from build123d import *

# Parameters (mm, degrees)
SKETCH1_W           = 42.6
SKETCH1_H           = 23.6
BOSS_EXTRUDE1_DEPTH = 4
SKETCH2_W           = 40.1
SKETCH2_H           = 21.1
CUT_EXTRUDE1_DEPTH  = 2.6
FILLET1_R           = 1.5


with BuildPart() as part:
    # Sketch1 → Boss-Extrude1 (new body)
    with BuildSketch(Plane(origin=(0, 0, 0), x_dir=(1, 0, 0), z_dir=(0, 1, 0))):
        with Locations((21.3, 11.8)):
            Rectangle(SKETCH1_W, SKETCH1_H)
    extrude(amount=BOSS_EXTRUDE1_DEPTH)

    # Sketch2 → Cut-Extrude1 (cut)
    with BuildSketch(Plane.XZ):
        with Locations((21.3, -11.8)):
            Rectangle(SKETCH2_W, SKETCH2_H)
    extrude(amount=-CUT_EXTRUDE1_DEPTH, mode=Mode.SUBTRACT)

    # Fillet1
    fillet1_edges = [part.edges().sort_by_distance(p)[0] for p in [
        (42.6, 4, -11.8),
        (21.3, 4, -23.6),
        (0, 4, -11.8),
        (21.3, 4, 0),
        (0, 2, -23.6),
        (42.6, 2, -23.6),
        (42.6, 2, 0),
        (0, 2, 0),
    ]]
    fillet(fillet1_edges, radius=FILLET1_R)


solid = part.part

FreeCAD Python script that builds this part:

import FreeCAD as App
import Part
import Sketcher

V = App.Vector


def edges_at(feature, points):
    """Names of the edges that pass closest to the given points."""
    edges = feature.Shape.Edges
    near = lambda p: min(range(len(edges)), key=lambda i: edges[i].distToShape(Part.Vertex(*p))[0])
    return sorted({f"Edge{near(p) + 1}" for p in points})

doc = App.newDocument("Part")
body = doc.addObject("PartDesign::Body", "Body")

# Sketch on XZ plane
sketch1 = body.newObject("Sketcher::SketchObject", "Sketch")
sketch1.AttachmentSupport = (doc.getObject("XZ_Plane"), [""])
sketch1.MapMode = "FlatFace"
sketch1.addGeometry(Part.LineSegment(V(0, -24, 0), V(0, 0, 0)), False)
sketch1.addGeometry(Part.LineSegment(V(0, 0, 0), V(43, 0, 0)), False)
sketch1.addGeometry(Part.LineSegment(V(43, 0, 0), V(43, -24, 0)), False)
sketch1.addGeometry(Part.LineSegment(V(43, -24, 0), V(0, -24, 0)), False)
sketch1.addConstraint(Sketcher.Constraint("Coincident", 0, 2, 1, 1))
sketch1.addConstraint(Sketcher.Constraint("Coincident", 1, 2, 2, 1))
sketch1.addConstraint(Sketcher.Constraint("Coincident", 2, 2, 3, 1))
sketch1.addConstraint(Sketcher.Constraint("Coincident", 3, 2, 0, 1))
sketch1.addConstraint(Sketcher.Constraint("Vertical", 0))
sketch1.addConstraint(Sketcher.Constraint("Horizontal", 1))
sketch1.addConstraint(Sketcher.Constraint("Vertical", 2))
sketch1.addConstraint(Sketcher.Constraint("Horizontal", 3))
sketch1.addConstraint(Sketcher.Constraint("Coincident", 0, 2, -1, 1))
sketch1.addConstraint(Sketcher.Constraint("DistanceX", 1, 1, 1, 2, 42.6))
sketch1.addConstraint(Sketcher.Constraint("DistanceY", 0, 1, 0, 2, 23.6))
pad1 = body.newObject("PartDesign::Pad", "Pad")
pad1.Profile = sketch1
pad1.Length = 4
pad1.Reversed = True

# Sketch on XZ plane
sketch2 = body.newObject("Sketcher::SketchObject", "Sketch001")
sketch2.AttachmentSupport = (doc.getObject("XZ_Plane"), [""])
sketch2.MapMode = "FlatFace"
sketch2.addGeometry(Part.LineSegment(V(1, -1, 0), V(1, -22, 0)), False)
sketch2.addGeometry(Part.LineSegment(V(1, -22, 0), V(41, -22, 0)), False)
sketch2.addGeometry(Part.LineSegment(V(41, -22, 0), V(41, -1, 0)), False)
sketch2.addGeometry(Part.LineSegment(V(41, -1, 0), V(1, -1, 0)), False)
sketch2.addConstraint(Sketcher.Constraint("Coincident", 0, 2, 1, 1))
sketch2.addConstraint(Sketcher.Constraint("Coincident", 1, 2, 2, 1))
sketch2.addConstraint(Sketcher.Constraint("Coincident", 2, 2, 3, 1))
sketch2.addConstraint(Sketcher.Constraint("Coincident", 3, 2, 0, 1))
sketch2.addConstraint(Sketcher.Constraint("Vertical", 0))
sketch2.addConstraint(Sketcher.Constraint("Horizontal", 1))
sketch2.addConstraint(Sketcher.Constraint("Vertical", 2))
sketch2.addConstraint(Sketcher.Constraint("Horizontal", 3))
sketch2.addConstraint(Sketcher.Constraint("DistanceX", 1, 1, 1, 2, 40.1))
sketch2.addConstraint(Sketcher.Constraint("DistanceY", 0, 2, 0, 1, 21.1))
sketch2.addConstraint(Sketcher.Constraint("DistanceX", -1, 1, 0, 2, 1.25))
sketch2.addConstraint(Sketcher.Constraint("DistanceY", 0, 2, -1, 1, 22.35))
pocket1 = body.newObject("PartDesign::Pocket", "Pocket")
pocket1.Profile = sketch2
pocket1.Length = 2.6
doc.recompute()

fillet = body.newObject("PartDesign::Fillet", "Fillet")
fillet.Base = (pocket1, edges_at(pocket1, [
    (42.6, 4, -11.8),
    (21.3, 4, -23.6),
    (0, 4, -11.8),
    (21.3, 4, 0),
    (0, 2, -23.6),
    (42.6, 2, -23.6),
    (42.6, 2, 0),
    (0, 2, 0),
]))
fillet.Radius = 1.5

doc.recompute()
